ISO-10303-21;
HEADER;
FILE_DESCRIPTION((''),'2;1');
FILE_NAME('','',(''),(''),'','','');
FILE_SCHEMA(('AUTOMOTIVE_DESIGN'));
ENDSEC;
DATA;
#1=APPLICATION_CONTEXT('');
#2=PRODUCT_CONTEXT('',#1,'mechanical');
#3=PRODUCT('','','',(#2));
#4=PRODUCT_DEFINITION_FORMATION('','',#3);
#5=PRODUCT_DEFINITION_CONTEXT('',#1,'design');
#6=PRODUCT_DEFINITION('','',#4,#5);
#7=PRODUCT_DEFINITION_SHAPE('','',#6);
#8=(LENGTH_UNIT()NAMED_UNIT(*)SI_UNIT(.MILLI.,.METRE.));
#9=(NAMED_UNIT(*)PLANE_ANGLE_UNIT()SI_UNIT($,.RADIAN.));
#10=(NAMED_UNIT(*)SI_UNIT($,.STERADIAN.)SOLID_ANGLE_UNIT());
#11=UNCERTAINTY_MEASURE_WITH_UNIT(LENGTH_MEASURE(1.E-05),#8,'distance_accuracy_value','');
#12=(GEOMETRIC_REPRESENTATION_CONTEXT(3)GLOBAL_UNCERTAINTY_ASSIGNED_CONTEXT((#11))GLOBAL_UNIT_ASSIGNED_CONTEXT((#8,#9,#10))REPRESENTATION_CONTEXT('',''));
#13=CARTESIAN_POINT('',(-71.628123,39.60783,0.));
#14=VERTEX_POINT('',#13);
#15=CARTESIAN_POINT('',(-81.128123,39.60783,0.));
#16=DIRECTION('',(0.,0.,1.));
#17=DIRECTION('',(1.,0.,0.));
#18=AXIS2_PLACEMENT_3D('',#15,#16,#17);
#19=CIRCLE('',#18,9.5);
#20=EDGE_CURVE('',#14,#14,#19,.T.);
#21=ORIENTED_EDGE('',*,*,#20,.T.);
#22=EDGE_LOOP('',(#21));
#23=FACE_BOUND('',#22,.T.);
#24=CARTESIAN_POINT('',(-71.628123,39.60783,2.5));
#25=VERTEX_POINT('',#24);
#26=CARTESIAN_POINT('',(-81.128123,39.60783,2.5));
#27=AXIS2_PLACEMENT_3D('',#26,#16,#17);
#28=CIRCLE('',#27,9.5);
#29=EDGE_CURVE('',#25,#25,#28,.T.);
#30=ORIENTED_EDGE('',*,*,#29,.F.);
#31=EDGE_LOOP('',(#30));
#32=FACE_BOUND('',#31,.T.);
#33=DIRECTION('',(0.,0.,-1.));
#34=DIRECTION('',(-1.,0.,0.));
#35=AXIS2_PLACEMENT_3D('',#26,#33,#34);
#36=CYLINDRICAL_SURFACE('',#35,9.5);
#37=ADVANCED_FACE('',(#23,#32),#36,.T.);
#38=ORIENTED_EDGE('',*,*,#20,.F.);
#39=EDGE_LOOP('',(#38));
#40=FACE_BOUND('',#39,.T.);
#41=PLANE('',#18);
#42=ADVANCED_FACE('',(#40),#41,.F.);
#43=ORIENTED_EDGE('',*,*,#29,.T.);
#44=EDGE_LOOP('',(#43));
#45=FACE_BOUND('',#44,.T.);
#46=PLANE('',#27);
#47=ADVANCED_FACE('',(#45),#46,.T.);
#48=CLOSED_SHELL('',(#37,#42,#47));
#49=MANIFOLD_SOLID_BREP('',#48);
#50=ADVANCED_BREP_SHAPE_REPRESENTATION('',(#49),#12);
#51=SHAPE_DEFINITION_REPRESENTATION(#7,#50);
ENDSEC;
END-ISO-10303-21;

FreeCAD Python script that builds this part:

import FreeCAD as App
import Part
import Sketcher
Q = App.Units.Quantity

doc = App.newDocument("Part")
body = doc.addObject("PartDesign::Body", "Body")

# Sketch on XY plane
sketch1 = body.newObject("Sketcher::SketchObject", "Sketch")
sketch1.AttachmentSupport = (doc.getObject("XY_Plane"), [""])
sketch1.MapMode = "FlatFace"
sketch1.addGeometry(Part.Circle(App.Vector(-81, 40, 0), App.Vector(0, 0, 1), 10), False)
sketch1.addConstraint(Sketcher.Constraint("Diameter", 0, Q("19 mm")))
sketch1.addConstraint(Sketcher.Constraint("DistanceY", -1, 1, 0, 3, Q("39.60783 mm")))
sketch1.addConstraint(Sketcher.Constraint("DistanceX", 0, 3, -1, 1, Q("81.128123 mm")))
pad1 = body.newObject("PartDesign::Pad", "Pad")
pad1.Profile = sketch1
pad1.Length = 2.5

doc.recompute()
